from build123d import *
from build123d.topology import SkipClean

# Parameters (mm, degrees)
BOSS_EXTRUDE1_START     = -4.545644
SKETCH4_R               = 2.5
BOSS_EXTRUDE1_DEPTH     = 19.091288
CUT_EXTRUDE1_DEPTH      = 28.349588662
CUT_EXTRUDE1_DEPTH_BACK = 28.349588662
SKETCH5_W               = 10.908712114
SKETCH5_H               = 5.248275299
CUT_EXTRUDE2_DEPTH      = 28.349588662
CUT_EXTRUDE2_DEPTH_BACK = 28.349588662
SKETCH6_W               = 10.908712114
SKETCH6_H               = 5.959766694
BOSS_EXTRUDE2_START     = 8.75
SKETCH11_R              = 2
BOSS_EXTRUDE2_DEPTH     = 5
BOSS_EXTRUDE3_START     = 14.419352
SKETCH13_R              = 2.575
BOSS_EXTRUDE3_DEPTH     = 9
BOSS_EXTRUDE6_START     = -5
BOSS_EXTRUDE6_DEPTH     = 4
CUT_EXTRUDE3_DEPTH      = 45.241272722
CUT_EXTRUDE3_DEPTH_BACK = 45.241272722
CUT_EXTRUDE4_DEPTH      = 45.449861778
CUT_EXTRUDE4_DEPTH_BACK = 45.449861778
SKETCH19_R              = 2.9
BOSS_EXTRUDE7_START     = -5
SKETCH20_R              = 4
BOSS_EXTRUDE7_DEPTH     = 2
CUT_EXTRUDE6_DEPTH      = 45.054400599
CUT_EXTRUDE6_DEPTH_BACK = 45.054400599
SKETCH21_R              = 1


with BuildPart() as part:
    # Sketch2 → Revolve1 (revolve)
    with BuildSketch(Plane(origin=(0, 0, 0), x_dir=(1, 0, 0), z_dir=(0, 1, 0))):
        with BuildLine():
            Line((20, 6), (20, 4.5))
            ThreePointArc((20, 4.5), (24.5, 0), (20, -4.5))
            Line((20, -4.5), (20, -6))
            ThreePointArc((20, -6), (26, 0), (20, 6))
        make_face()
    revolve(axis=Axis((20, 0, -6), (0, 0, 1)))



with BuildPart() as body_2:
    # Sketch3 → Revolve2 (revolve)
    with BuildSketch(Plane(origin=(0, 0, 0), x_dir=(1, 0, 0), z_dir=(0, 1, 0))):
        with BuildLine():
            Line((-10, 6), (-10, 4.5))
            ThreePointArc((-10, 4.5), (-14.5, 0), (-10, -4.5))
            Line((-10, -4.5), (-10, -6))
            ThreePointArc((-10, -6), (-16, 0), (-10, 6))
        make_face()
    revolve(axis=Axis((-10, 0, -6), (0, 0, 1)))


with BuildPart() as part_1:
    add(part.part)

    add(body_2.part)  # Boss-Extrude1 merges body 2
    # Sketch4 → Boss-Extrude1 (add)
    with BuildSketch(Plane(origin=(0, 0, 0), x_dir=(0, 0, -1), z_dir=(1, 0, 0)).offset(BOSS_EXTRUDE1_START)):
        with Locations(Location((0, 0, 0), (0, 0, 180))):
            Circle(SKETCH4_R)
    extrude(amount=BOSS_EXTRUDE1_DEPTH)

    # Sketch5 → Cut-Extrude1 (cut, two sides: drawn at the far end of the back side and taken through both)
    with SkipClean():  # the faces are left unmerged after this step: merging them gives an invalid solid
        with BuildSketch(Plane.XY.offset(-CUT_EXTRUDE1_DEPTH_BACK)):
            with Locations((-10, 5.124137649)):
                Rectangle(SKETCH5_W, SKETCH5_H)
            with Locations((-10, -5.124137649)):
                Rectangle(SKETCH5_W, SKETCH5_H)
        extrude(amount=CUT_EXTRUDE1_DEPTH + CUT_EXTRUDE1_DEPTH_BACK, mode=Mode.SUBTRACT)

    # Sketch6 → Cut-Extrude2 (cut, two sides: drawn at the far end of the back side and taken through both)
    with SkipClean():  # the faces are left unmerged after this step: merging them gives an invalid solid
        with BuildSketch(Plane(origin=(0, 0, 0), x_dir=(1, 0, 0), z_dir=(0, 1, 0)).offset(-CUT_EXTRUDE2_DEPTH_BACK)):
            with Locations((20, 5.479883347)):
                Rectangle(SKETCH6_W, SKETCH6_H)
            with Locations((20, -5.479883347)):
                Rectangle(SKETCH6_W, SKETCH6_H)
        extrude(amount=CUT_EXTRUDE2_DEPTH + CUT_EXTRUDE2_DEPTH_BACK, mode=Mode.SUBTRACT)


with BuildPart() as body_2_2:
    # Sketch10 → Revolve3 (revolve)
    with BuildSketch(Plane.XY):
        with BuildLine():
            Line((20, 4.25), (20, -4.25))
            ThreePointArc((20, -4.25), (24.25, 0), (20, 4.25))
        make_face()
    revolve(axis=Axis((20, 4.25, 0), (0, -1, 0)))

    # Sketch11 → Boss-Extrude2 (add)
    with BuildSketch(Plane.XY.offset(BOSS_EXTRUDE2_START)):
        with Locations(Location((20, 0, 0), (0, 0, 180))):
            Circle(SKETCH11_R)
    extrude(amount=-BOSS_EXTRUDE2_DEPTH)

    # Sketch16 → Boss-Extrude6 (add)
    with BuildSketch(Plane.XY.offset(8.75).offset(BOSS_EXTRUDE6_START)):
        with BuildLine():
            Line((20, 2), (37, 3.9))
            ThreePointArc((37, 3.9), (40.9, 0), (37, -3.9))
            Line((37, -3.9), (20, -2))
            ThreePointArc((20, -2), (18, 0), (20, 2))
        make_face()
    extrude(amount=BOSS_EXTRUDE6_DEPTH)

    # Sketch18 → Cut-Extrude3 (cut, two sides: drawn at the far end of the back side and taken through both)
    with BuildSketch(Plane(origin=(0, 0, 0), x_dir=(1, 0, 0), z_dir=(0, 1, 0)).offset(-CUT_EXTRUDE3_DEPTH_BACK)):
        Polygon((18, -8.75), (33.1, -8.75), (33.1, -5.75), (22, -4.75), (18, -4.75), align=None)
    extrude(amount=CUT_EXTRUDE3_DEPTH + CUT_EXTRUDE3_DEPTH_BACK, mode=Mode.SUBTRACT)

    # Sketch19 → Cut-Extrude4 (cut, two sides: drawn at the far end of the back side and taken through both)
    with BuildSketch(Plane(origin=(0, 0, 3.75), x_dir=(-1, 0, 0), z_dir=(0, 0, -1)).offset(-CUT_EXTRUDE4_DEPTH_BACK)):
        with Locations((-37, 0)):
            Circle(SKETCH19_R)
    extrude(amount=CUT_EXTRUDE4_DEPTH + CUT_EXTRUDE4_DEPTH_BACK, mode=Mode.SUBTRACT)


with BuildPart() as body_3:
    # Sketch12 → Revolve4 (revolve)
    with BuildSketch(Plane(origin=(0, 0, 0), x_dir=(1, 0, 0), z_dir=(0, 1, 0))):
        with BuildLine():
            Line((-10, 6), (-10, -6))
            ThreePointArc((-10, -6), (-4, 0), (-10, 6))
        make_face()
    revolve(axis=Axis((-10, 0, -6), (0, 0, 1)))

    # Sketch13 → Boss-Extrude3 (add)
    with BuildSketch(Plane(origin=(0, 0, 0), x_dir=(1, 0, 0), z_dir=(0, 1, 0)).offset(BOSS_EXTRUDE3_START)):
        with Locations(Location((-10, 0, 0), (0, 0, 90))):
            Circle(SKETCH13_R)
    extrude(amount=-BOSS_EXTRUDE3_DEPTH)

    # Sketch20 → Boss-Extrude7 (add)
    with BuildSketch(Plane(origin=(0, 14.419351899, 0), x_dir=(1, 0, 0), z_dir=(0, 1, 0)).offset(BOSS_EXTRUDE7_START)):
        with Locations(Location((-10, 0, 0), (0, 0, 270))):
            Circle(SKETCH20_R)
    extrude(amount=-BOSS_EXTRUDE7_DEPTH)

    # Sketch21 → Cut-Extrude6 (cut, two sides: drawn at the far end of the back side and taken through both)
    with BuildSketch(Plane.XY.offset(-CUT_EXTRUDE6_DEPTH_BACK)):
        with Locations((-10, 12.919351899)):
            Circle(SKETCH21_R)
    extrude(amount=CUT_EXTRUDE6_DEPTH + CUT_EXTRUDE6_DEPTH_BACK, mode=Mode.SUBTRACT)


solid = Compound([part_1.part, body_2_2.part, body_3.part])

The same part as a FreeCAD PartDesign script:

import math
import FreeCAD as App
import Part
import Sketcher

V = App.Vector

doc = App.newDocument("Part")
body = doc.addObject("PartDesign::Body", "Body")

sketch1 = body.newObject("Sketcher::SketchObject", "Sketch")
sketch1.AttachmentSupport = (doc.getObject("XZ_Plane"), [""])
sketch1.MapMode = "FlatFace"
sketch1.addGeometry([
    Part.LineSegment(V(20, -6, 0), V(20, -4.5, 0)),
    Part.ArcOfCircle(Part.Circle(V(20, 0, 0), V(0, 0, 1), 4.5), math.radians(-90), math.radians(90)),
    Part.LineSegment(V(20, 4.5, 0), V(20, 6, 0)),
    Part.ArcOfCircle(Part.Circle(V(20, 0, 0), V(0, 0, 1), 6), math.radians(-90), math.radians(90)),
], False)
sketch1.addGeometry(Part.LineSegment(V(20, -6, 0), V(20, 6, 0)), True)
sketch1.addConstraint([
    Sketcher.Constraint("Coincident", 0, 2, 1, 1),
    Sketcher.Constraint("Coincident", 1, 2, 2, 1),
    Sketcher.Constraint("Coincident", 2, 2, 3, 2),
    Sketcher.Constraint("Coincident", 3, 1, 0, 1),
    Sketcher.Constraint("Vertical", 0),
    Sketcher.Constraint("Vertical", 2),
    Sketcher.Constraint("Vertical", 4),
    Sketcher.Constraint("Coincident", 3, 3, 1, 3),
    Sketcher.Constraint("Coincident", 4, 1, 3, 1),
    Sketcher.Constraint("Coincident", 4, 2, 2, 2),
    Sketcher.Constraint("PointOnObject", 1, 3, -1),
    Sketcher.Constraint("Vertical", 3, 3, 0, 2),
    Sketcher.Constraint("Radius", 3, 6.0),
    Sketcher.Constraint("Radius", 1, 4.5),
    Sketcher.Constraint("DistanceX", -1, 1, 1, 3, 20.0),
])
revolution = body.newObject("PartDesign::Revolution", "Revolution")
revolution.Profile = sketch1
revolution.ReferenceAxis = (sketch1, ["Axis0"])
revolution.Angle = 360
body2 = doc.addObject("PartDesign::Body", "Body001")

sketch2 = body2.newObject("Sketcher::SketchObject", "Sketch001")
sketch2.AttachmentSupport = (doc.getObject("XZ_Plane001"), [""])
sketch2.MapMode = "FlatFace"
sketch2.addGeometry([
    Part.LineSegment(V(-10, -4.5, 0), V(-10, -6, 0)),
    Part.ArcOfCircle(Part.Circle(V(-10, 0, 0), V(0, 0, 1), 6), math.radians(90), math.radians(270)),
    Part.LineSegment(V(-10, 6, 0), V(-10, 4.5, 0)),
    Part.ArcOfCircle(Part.Circle(V(-10, 0, 0), V(0, 0, 1), 4.5), math.radians(90), math.radians(270)),
], False)
sketch2.addGeometry(Part.LineSegment(V(-10, -6, 0), V(-10, 6, 0)), True)
sketch2.addConstraint([
    Sketcher.Constraint("Coincident", 0, 2, 1, 2),
    Sketcher.Constraint("Coincident", 1, 1, 2, 1),
    Sketcher.Constraint("Coincident", 2, 2, 3, 1),
    Sketcher.Constraint("Coincident", 3, 2, 0, 1),
    Sketcher.Constraint("Vertical", 0),
    Sketcher.Constraint("Vertical", 2),
    Sketcher.Constraint("Vertical", 4),
    Sketcher.Constraint("Coincident", 3, 3, 1, 3),
    Sketcher.Constraint("Coincident", 4, 1, 0, 2),
    Sketcher.Constraint("Coincident", 4, 2, 1, 1),
    Sketcher.Constraint("PointOnObject", 1, 3, -1),
    Sketcher.Constraint("Vertical", 3, 3, 0, 2),
    Sketcher.Constraint("Radius", 1, 6.0),
    Sketcher.Constraint("Radius", 3, 4.5),
    Sketcher.Constraint("DistanceX", 1, 3, -1, 1, 10.0),
])
revolution2 = body2.newObject("PartDesign::Revolution", "Revolution001")
revolution2.Profile = sketch2
revolution2.ReferenceAxis = (sketch2, ["Axis0"])
revolution2.Angle = 360
body.AllowCompound = True
doc.recompute()

boolean = body.newObject("PartDesign::Boolean", "Boolean")
boolean.Type = "Fuse"
boolean.addObjects([body2])

sketch3 = body.newObject("Sketcher::SketchObject", "Sketch002")
sketch3.AttachmentSupport = (doc.getObject("YZ_Plane"), [""])
sketch3.MapMode = "FlatFace"
sketch3.AttachmentOffset = App.Placement(V(0, 0, -4.545644), App.Rotation())
sketch3.addGeometry(Part.Circle(V(0, 0, 0), V(0, 0, 1), 2.5), False)
sketch3.addConstraint([
    Sketcher.Constraint("Coincident", 0, 3, -1, 1),
    Sketcher.Constraint("Diameter", 0, 5.0),
])
pad1 = body.newObject("PartDesign::Pad", "Pad")
pad1.Profile = sketch3
pad1.Length = 19.091288

sketch4 = body.newObject("Sketcher::SketchObject", "Sketch003")
sketch4.AttachmentSupport = (doc.getObject("XY_Plane"), [""])
sketch4.MapMode = "FlatFace"
sketch4.addGeometry([
    Part.LineSegment(V(-15, 8, 0), V(-15, 2, 0)),
    Part.LineSegment(V(-15, 2, 0), V(-5, 2, 0)),
    Part.LineSegment(V(-5, 2, 0), V(-5, 8, 0)),
    Part.LineSegment(V(-5, 8, 0), V(-15, 8, 0)),
    Part.LineSegment(V(-15, -2, 0), V(-15, -8, 0)),
    Part.LineSegment(V(-15, -8, 0), V(-5, -8, 0)),
    Part.LineSegment(V(-5, -8, 0), V(-5, -2, 0)),
    Part.LineSegment(V(-5, -2, 0), V(-15, -2, 0)),
], False)
sketch4.addConstraint([
    Sketcher.Constraint("Coincident", 0, 2, 1, 1),
    Sketcher.Constraint("Coincident", 1, 2, 2, 1),
    Sketcher.Constraint("Coincident", 2, 2, 3, 1),
    Sketcher.Constraint("Coincident", 3, 2, 0, 1),
    Sketcher.Constraint("Coincident", 4, 2, 5, 1),
    Sketcher.Constraint("Coincident", 5, 2, 6, 1),
    Sketcher.Constraint("Coincident", 6, 2, 7, 1),
    Sketcher.Constraint("Coincident", 7, 2, 4, 1),
    Sketcher.Constraint("Vertical", 0),
    Sketcher.Constraint("Horizontal", 1),
    Sketcher.Constraint("Vertical", 2),
    Sketcher.Constraint("Horizontal", 3),
    Sketcher.Constraint("Vertical", 4),
    Sketcher.Constraint("Horizontal", 5),
    Sketcher.Constraint("Vertical", 6),
    Sketcher.Constraint("Horizontal", 7),
    Sketcher.Constraint("Symmetric", 3, 2, 4, 2, -1),
    Sketcher.Constraint("Symmetric", 1, 2, 6, 2, -1),
    Sketcher.Constraint("DistanceY", 6, 2, 1, 2, 5.0),
    Sketcher.Constraint("DistanceX", 1, 1, 1, 2, 10.908712),
    Sketcher.Constraint("DistanceY", 0, 2, 0, 1, 5.248275),
    Sketcher.Constraint("DistanceX", 0, 2, -1, 1, 15.454356),
])
pocket1 = body.newObject("PartDesign::Pocket", "Pocket")
pocket1.Profile = sketch4
pocket1.Type = "ThroughAll"
pocket1.Midplane = True

sketch5 = body.newObject("Sketcher::SketchObject", "Sketch004")
sketch5.AttachmentSupport = (doc.getObject("XZ_Plane"), [""])
sketch5.MapMode = "FlatFace"
sketch5.addGeometry([
    Part.LineSegment(V(15, -8, 0), V(15, -2, 0)),
    Part.LineSegment(V(15, -2, 0), V(25, -2, 0)),
    Part.LineSegment(V(25, -2, 0), V(25, -8, 0)),
    Part.LineSegment(V(25, -8, 0), V(15, -8, 0)),
    Part.LineSegment(V(15, 2, 0), V(15, 8, 0)),
    Part.LineSegment(V(15, 8, 0), V(25, 8, 0)),
    Part.LineSegment(V(25, 8, 0), V(25, 2, 0)),
    Part.LineSegment(V(25, 2, 0), V(15, 2, 0)),
], False)
sketch5.addConstraint([
    Sketcher.Constraint("Coincident", 0, 2, 1, 1),
    Sketcher.Constraint("Coincident", 1, 2, 2, 1),
    Sketcher.Constraint("Coincident", 2, 2, 3, 1),
    Sketcher.Constraint("Coincident", 3, 2, 0, 1),
    Sketcher.Constraint("Coincident", 4, 2, 5, 1),
    Sketcher.Constraint("Coincident", 5, 2, 6, 1),
    Sketcher.Constraint("Coincident", 6, 2, 7, 1),
    Sketcher.Constraint("Coincident", 7, 2, 4, 1),
    Sketcher.Constraint("Vertical", 0),
    Sketcher.Constraint("Horizontal", 1),
    Sketcher.Constraint("Vertical", 2),
    Sketcher.Constraint("Horizontal", 3),
    Sketcher.Constraint("Vertical", 4),
    Sketcher.Constraint("Horizontal", 5),
    Sketcher.Constraint("Vertical", 6),
    Sketcher.Constraint("Horizontal", 7),
    Sketcher.Constraint("Symmetric", 3, 2, 4, 2, -1),
    Sketcher.Constraint("Symmetric", 1, 2, 6, 2, -1),
    Sketcher.Constraint("DistanceY", 1, 2, 6, 2, 5.0),
    Sketcher.Constraint("DistanceX", 1, 1, 1, 2, 10.908712),
    Sketcher.Constraint("DistanceY", 0, 1, 0, 2, 5.959767),
    Sketcher.Constraint("DistanceX", -1, 1, 0, 2, 14.545644),
])
pocket2 = body.newObject("PartDesign::Pocket", "Pocket001")
pocket2.Profile = sketch5
pocket2.Type = "ThroughAll"
pocket2.Midplane = True
body3 = doc.addObject("PartDesign::Body", "Body002")

sketch6 = body3.newObject("Sketcher::SketchObject", "Sketch005")
sketch6.AttachmentSupport = (doc.getObject("XY_Plane002"), [""])
sketch6.MapMode = "FlatFace"
sketch6.addGeometry([
    Part.LineSegment(V(20, 4.2, 0), V(20, -4.2, 0)),
    Part.ArcOfCircle(Part.Circle(V(20, 0, 0), V(0, 0, 1), 4.2), math.radians(-90), math.radians(90)),
], False)
sketch6.addGeometry(Part.LineSegment(V(20, 4.2, 0), V(20, -4.2, 0)), True)
sketch6.addConstraint([
    Sketcher.Constraint("Coincident", 0, 1, 1, 2),
    Sketcher.Constraint("Coincident", 1, 1, 0, 2),
    Sketcher.Constraint("Vertical", 0),
    Sketcher.Constraint("Vertical", 2),
    Sketcher.Constraint("Coincident", 2, 1, 0, 1),
    Sketcher.Constraint("PointOnObject", 1, 3, -1),
    Sketcher.Constraint("Vertical", 1, 3, 0, 1),
    Sketcher.Constraint("Equal", 0, 2),
    Sketcher.Constraint("Radius", 1, 4.25),
    Sketcher.Constraint("DistanceX", -1, 1, 1, 3, 20.0),
])
revolution3 = body3.newObject("PartDesign::Revolution", "Revolution002")
revolution3.Profile = sketch6
revolution3.ReferenceAxis = (sketch6, ["Axis0"])
revolution3.Angle = 360

sketch7 = body3.newObject("Sketcher::SketchObject", "Sketch006")
sketch7.AttachmentSupport = (doc.getObject("XY_Plane002"), [""])
sketch7.MapMode = "FlatFace"
sketch7.AttachmentOffset = App.Placement(V(0, 0, 8.75), App.Rotation())
sketch7.addGeometry(Part.Circle(V(20, 0, 0), V(0, 0, 1), 2), False)
sketch7.addConstraint([
    Sketcher.Constraint("PointOnObject", 0, 3, -1),
    Sketcher.Constraint("Diameter", 0, 4.0),
    Sketcher.Constraint("DistanceX", -1, 1, 0, 3, 20.0),
])
pad2 = body3.newObject("PartDesign::Pad", "Pad001")
pad2.Profile = sketch7
pad2.Length = 5
pad2.Reversed = True

sketch8 = body3.newObject("Sketcher::SketchObject", "Sketch007")
sketch8.AttachmentSupport = (doc.getObject("XY_Plane002"), [""])
sketch8.MapMode = "FlatFace"
sketch8.AttachmentOffset = App.Placement(V(0, 0, 3.75), App.Rotation())
sketch8.addGeometry([
    Part.LineSegment(V(37, 3.9, 0), V(20, 2, 0)),
    Part.ArcOfCircle(Part.Circle(V(20, 0, 0), V(0, 0, 1), 2), math.radians(90), math.radians(270)),
    Part.LineSegment(V(20, -2, 0), V(37, -3.9, 0)),
    Part.ArcOfCircle(Part.Circle(V(37, 0, 0), V(0, 0, 1), 3.9), math.radians(-90), math.radians(90)),
], False)
sketch8.addConstraint([
    Sketcher.Constraint("Coincident", 0, 2, 1, 1),
    Sketcher.Constraint("Coincident", 1, 2, 2, 1),
    Sketcher.Constraint("Coincident", 2, 2, 3, 1),
    Sketcher.Constraint("Coincident", 3, 2, 0, 1),
    Sketcher.Constraint("Symmetric", 0, 2, 1, 2, -1),
    Sketcher.Constraint("Symmetric", 2, 2, 3, 2, -1),
    Sketcher.Constraint("Vertical", 1, 3, 0, 2),
    Sketcher.Constraint("Vertical", 3, 3, 2, 2),
    Sketcher.Constraint("Radius", 1, 2.0),
    Sketcher.Constraint("Radius", 3, 3.9),
    Sketcher.Constraint("DistanceX", -1, 1, 1, 3, 20.0),
    Sketcher.Constraint("DistanceX", -1, 1, 3, 3, 37.0),
])
pad3 = body3.newObject("PartDesign::Pad", "Pad002")
pad3.Profile = sketch8
pad3.Length = 4

sketch9 = body3.newObject("Sketcher::SketchObject", "Sketch008")
sketch9.AttachmentSupport = (doc.getObject("XZ_Plane002"), [""])
sketch9.MapMode = "FlatFace"
sketch9.addGeometry([
    Part.LineSegment(V(18, 8.8, 0), V(33.1, 8.8, 0)),
    Part.LineSegment(V(33.1, 8.8, 0), V(33.1, 5.8, 0)),
    Part.LineSegment(V(33.1, 5.8, 0), V(22, 4.8, 0)),
    Part.LineSegment(V(22, 4.8, 0), V(18, 4.8, 0)),
    Part.LineSegment(V(18, 4.8, 0), V(18, 8.8, 0)),
], False)
sketch9.addConstraint([
    Sketcher.Constraint("Coincident", 0, 2, 1, 1),
    Sketcher.Constraint("Coincident", 1, 2, 2, 1),
    Sketcher.Constraint("Coincident", 2, 2, 3, 1),
    Sketcher.Constraint("Coincident", 3, 2, 4, 1),
    Sketcher.Constraint("Coincident", 4, 2, 0, 1),
    Sketcher.Constraint("Horizontal", 0),
    Sketcher.Constraint("Vertical", 1),
    Sketcher.Constraint("Horizontal", 3),
    Sketcher.Constraint("Vertical", 4),
    Sketcher.Constraint("Equal", 3, 4),
    Sketcher.Constraint("DistanceX", 3, 2, 3, 1, 4.0),
    Sketcher.Constraint("DistanceY", 1, 2, 1, 1, 3.0),
    Sketcher.Constraint("DistanceX", 0, 1, 0, 2, 15.1),
    Sketcher.Constraint("DistanceX", -1, 1, 2, 2, 22.0),
    Sketcher.Constraint("DistanceY", -1, 1, 0, 2, 8.75),
])
pocket3 = body3.newObject("PartDesign::Pocket", "Pocket002")
pocket3.Profile = sketch9
pocket3.Type = "ThroughAll"
pocket3.Midplane = True

sketch10 = body3.newObject("Sketcher::SketchObject", "Sketch009")
sketch10.AttachmentSupport = (doc.getObject("XY_Plane002"), [""])
sketch10.MapMode = "FlatFace"
sketch10.AttachmentOffset = App.Placement(V(0, 0, 3.75), App.Rotation())
sketch10.addGeometry(Part.Circle(V(37, 0, 0), V(0, 0, 1), 2.9), False)
sketch10.addConstraint([
    Sketcher.Constraint("PointOnObject", 0, 3, -1),
    Sketcher.Constraint("Diameter", 0, 5.8),
    Sketcher.Constraint("DistanceX", -1, 1, 0, 3, 37.0),
])
pocket4 = body3.newObject("PartDesign::Pocket", "Pocket003")
pocket4.Profile = sketch10
pocket4.Type = "ThroughAll"
pocket4.Midplane = True
body4 = doc.addObject("PartDesign::Body", "Body003")

sketch11 = body4.newObject("Sketcher::SketchObject", "Sketch010")
sketch11.AttachmentSupport = (doc.getObject("XZ_Plane003"), [""])
sketch11.MapMode = "FlatFace"
sketch11.addGeometry([
    Part.LineSegment(V(-10, -6, 0), V(-10, 6, 0)),
    Part.ArcOfCircle(Part.Circle(V(-10, 0, 0), V(0, 0, 1), 6), math.radians(-90), math.radians(90)),
], False)
sketch11.addGeometry(Part.LineSegment(V(-10, -6, 0), V(-10, 6, 0)), True)
sketch11.addConstraint([
    Sketcher.Constraint("Coincident", 0, 1, 1, 1),
    Sketcher.Constraint("Coincident", 1, 2, 0, 2),
    Sketcher.Constraint("Vertical", 0),
    Sketcher.Constraint("Vertical", 2),
    Sketcher.Constraint("Coincident", 2, 1, 0, 1),
    Sketcher.Constraint("PointOnObject", 1, 3, -1),
    Sketcher.Constraint("Vertical", 1, 3, 0, 1),
    Sketcher.Constraint("Equal", 0, 2),
    Sketcher.Constraint("Radius", 1, 6.0),
    Sketcher.Constraint("DistanceX", 1, 3, -1, 1, 10.0),
])
revolution4 = body4.newObject("PartDesign::Revolution", "Revolution003")
revolution4.Profile = sketch11
revolution4.ReferenceAxis = (sketch11, ["Axis0"])
revolution4.Angle = 360

sketch12 = body4.newObject("Sketcher::SketchObject", "Sketch011")
sketch12.AttachmentSupport = (doc.getObject("XZ_Plane003"), [""])
sketch12.MapMode = "FlatFace"
sketch12.AttachmentOffset = App.Placement(V(0, 0, -14.419352), App.Rotation())
sketch12.addGeometry(Part.Circle(V(-10, 0, 0), V(0, 0, 1), 2.6), False)
sketch12.addConstraint([
    Sketcher.Constraint("PointOnObject", 0, 3, -1),
    Sketcher.Constraint("Diameter", 0, 5.15),
    Sketcher.Constraint("DistanceX", 0, 3, -1, 1, 10.0),
])
pad4 = body4.newObject("PartDesign::Pad", "Pad003")
pad4.Profile = sketch12
pad4.Length = 9

sketch13 = body4.newObject("Sketcher::SketchObject", "Sketch012")
sketch13.AttachmentSupport = (doc.getObject("XZ_Plane003"), [""])
sketch13.MapMode = "FlatFace"
sketch13.AttachmentOffset = App.Placement(V(0, 0, -9.419352), App.Rotation())
sketch13.addGeometry(Part.Circle(V(-10, 0, 0), V(0, 0, 1), 4), False)
sketch13.addConstraint([
    Sketcher.Constraint("PointOnObject", 0, 3, -1),
    Sketcher.Constraint("Diameter", 0, 8.0),
    Sketcher.Constraint("DistanceX", 0, 3, -1, 1, 10.0),
])
pad5 = body4.newObject("PartDesign::Pad", "Pad004")
pad5.Profile = sketch13
pad5.Length = 2

sketch14 = body4.newObject("Sketcher::SketchObject", "Sketch013")
sketch14.AttachmentSupport = (doc.getObject("XY_Plane003"), [""])
sketch14.MapMode = "FlatFace"
sketch14.addGeometry(Part.Circle(V(-10, 12.9, 0), V(0, 0, 1), 1), False)
sketch14.addConstraint([
    Sketcher.Constraint("Diameter", 0, 2.0),
    Sketcher.Constraint("DistanceX", 0, 3, -1, 1, 10.0),
    Sketcher.Constraint("DistanceY", -1, 1, 0, 3, 12.919352),
])
pocket5 = body4.newObject("PartDesign::Pocket", "Pocket004")
pocket5.Profile = sketch14
pocket5.Type = "ThroughAll"
pocket5.Midplane = True

doc.recompute()
